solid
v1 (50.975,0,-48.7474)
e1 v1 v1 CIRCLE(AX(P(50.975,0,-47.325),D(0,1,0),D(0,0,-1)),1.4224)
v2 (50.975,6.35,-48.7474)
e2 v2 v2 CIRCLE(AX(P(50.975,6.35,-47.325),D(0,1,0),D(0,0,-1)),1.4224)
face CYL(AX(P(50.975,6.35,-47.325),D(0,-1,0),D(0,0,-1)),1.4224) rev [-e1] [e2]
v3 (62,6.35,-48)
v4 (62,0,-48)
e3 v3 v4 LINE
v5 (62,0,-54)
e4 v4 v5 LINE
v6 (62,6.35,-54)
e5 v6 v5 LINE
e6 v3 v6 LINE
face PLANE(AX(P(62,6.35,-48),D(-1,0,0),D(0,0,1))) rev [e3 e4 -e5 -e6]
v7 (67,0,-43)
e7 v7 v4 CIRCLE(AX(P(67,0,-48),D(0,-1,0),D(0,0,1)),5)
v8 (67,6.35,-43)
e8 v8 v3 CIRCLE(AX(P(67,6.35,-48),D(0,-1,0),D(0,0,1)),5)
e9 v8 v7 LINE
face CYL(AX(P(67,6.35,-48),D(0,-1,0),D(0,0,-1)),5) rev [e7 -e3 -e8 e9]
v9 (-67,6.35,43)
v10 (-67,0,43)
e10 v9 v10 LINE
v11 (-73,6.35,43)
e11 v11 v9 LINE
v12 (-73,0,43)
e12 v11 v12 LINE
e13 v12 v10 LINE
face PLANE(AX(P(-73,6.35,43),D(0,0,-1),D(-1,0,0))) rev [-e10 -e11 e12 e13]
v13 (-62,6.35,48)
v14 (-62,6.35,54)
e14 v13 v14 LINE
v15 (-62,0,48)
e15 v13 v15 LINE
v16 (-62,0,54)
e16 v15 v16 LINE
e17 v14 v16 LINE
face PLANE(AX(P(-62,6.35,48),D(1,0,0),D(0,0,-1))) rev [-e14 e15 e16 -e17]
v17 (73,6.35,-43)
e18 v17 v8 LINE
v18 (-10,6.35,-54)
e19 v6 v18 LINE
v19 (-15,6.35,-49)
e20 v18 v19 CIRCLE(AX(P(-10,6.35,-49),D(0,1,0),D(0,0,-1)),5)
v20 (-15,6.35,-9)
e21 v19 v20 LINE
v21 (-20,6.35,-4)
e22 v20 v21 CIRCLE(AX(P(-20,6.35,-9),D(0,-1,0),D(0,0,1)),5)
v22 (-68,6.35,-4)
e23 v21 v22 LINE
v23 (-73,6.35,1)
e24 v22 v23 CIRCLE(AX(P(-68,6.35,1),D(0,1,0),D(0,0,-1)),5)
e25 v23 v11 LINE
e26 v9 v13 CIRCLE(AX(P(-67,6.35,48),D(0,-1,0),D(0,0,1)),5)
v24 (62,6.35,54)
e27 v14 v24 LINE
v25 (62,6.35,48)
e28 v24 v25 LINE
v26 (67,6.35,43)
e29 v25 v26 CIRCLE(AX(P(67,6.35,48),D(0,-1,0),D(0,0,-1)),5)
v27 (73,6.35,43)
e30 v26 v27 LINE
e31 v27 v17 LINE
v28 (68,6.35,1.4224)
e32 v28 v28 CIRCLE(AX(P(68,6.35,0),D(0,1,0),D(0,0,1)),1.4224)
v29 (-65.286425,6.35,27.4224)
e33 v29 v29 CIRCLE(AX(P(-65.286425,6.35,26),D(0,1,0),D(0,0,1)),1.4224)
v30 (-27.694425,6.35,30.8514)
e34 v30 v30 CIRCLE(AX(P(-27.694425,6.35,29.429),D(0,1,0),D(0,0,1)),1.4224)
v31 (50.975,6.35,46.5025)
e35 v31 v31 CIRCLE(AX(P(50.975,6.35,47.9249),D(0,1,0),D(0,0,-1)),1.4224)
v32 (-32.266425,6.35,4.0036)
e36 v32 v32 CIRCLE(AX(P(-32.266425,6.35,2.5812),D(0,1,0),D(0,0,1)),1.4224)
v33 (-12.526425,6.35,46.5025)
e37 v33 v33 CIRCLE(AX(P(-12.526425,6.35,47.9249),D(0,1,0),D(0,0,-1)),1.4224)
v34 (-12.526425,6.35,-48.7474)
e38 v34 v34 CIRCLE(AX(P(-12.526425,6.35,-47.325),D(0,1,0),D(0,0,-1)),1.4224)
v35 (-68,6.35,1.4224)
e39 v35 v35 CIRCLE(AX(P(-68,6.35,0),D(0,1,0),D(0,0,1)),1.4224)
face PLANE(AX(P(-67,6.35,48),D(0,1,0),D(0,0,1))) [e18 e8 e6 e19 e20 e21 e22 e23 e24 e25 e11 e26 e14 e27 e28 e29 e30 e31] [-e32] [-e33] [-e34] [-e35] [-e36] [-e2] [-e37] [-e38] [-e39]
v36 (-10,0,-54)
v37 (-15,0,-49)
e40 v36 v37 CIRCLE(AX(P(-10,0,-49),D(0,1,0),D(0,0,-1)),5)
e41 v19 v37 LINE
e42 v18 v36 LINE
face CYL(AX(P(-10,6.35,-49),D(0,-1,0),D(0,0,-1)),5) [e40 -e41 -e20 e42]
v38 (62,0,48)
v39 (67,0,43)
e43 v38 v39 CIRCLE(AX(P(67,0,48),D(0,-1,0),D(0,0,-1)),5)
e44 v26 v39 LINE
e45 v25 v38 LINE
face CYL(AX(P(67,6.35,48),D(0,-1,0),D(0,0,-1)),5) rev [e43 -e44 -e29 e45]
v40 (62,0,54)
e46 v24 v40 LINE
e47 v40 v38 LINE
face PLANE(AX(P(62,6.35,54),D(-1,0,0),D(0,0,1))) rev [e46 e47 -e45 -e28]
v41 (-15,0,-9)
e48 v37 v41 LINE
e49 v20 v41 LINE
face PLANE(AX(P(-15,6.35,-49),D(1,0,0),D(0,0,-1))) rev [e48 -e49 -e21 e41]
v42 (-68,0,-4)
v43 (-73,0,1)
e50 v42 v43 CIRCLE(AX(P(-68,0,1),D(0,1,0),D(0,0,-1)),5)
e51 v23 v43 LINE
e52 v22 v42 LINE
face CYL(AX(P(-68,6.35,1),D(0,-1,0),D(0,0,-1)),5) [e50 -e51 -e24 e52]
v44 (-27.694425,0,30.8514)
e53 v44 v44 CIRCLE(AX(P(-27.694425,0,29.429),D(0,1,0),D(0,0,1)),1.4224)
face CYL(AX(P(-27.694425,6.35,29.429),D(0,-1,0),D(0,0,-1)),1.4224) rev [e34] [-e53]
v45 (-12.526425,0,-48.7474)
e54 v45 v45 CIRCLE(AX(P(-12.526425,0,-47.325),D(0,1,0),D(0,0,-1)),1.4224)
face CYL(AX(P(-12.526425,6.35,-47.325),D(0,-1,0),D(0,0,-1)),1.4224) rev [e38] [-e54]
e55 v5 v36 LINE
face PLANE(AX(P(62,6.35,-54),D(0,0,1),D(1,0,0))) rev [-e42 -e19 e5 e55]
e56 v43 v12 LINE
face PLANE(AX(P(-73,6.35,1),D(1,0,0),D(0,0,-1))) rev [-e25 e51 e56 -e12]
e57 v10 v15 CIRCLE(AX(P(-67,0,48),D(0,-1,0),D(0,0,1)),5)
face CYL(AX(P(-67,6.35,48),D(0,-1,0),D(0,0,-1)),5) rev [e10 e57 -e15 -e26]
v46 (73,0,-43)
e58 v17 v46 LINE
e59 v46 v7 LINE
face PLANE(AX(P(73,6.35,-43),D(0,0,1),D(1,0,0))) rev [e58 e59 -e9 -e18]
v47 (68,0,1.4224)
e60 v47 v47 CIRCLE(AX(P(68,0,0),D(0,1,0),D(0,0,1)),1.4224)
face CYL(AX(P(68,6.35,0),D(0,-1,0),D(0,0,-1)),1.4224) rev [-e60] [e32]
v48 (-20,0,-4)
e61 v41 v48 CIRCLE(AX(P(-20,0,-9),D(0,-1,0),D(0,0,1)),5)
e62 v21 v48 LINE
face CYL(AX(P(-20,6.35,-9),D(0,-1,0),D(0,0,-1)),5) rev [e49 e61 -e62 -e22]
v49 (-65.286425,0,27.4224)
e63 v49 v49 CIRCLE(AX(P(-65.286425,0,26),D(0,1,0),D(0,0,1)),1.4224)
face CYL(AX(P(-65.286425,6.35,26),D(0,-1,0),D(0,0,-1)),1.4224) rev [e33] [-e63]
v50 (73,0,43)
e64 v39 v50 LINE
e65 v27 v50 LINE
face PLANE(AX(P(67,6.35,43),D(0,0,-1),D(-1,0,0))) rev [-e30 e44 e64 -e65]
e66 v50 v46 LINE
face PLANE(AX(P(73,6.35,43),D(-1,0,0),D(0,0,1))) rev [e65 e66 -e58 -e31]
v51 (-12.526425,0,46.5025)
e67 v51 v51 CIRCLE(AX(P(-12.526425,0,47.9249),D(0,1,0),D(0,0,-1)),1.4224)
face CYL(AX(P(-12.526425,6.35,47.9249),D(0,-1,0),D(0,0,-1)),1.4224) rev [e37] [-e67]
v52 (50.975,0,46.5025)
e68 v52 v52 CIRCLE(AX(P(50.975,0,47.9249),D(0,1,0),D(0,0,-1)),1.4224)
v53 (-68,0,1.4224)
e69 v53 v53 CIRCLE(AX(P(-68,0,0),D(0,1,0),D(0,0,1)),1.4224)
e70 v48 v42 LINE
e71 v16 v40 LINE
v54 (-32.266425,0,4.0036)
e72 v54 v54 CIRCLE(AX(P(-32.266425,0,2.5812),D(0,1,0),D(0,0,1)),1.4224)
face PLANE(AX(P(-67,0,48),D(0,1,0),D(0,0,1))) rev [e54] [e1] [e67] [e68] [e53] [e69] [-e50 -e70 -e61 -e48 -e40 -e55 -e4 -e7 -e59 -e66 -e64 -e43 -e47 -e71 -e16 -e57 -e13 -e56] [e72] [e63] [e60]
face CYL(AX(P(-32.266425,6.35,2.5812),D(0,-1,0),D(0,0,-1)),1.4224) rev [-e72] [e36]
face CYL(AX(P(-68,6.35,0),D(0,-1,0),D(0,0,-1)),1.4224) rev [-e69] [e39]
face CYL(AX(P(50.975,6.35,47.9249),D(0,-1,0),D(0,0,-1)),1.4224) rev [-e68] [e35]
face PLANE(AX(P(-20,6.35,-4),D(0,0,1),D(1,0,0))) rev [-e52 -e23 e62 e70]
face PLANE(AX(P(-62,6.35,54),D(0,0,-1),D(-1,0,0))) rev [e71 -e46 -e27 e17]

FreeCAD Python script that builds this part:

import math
import FreeCAD as App
import Part
import Sketcher

V = App.Vector
Q = App.Units.Quantity

doc = App.newDocument("Part")
params = doc.addObject("Spreadsheet::Sheet", "Params")
for row, (alias, value) in enumerate([
    ("sketch1_radius", "5 mm"),
    ("sketch1_width", "6 mm"),
    ("sketch1_width2", "124 mm"),
    ("sketch1_width3", "72 mm"),
    ("sketch1_height", "42 mm"),
    ("pad1_length", "6.35 mm"),
], start=1):
    params.set(f"A{row}", alias)
    params.set(f"B{row}", "=" + value)
    params.setAlias(f"B{row}", alias)

body = doc.addObject("PartDesign::Body", "Body")

# Sketch on XZ plane
sketch1 = body.newObject("Sketcher::SketchObject", "Sketch")
sketch1.AttachmentSupport = (doc.getObject("XZ_Plane"), [""])
sketch1.MapMode = "FlatFace"
sketch1.addGeometry([
    Part.LineSegment(V(-73, 1, 0), V(-73, 43, 0)),  # 0
    Part.LineSegment(V(-73, 43, 0), V(-67, 43, 0)),  # 1
    Part.ArcOfCircle(Part.Circle(V(-67, 48, 0), V(0, 0, 1), 5), math.radians(-90), math.radians(0)),  # 2
    Part.LineSegment(V(-62, 48, 0), V(-62, 54, 0)),  # 3
    Part.LineSegment(V(-62, 54, 0), V(62, 54, 0)),  # 4
    Part.LineSegment(V(62, 54, 0), V(62, 48, 0)),  # 5
    Part.ArcOfCircle(Part.Circle(V(67, 48, 0), V(0, 0, 1), 5), math.radians(180), math.radians(270)),  # 6
    Part.LineSegment(V(67, 43, 0), V(73, 43, 0)),  # 7
    Part.LineSegment(V(73, 43, 0), V(73, -43, 0)),  # 8
    Part.LineSegment(V(73, -43, 0), V(67, -43, 0)),  # 9
    Part.ArcOfCircle(Part.Circle(V(67, -48, 0), V(0, 0, 1), 5), math.radians(90), math.radians(180)),  # 10
    Part.LineSegment(V(62, -48, 0), V(62, -54, 0)),  # 11
    Part.LineSegment(V(62, -54, 0), V(-10, -54, 0)),  # 12
    Part.ArcOfCircle(Part.Circle(V(-10, -49, 0), V(0, 0, 1), 5), math.radians(180), math.radians(270)),  # 13
    Part.LineSegment(V(-15, -49, 0), V(-15, -9, 0)),  # 14
    Part.ArcOfCircle(Part.Circle(V(-20, -9, 0), V(0, 0, 1), 5), math.radians(0), math.radians(90)),  # 15
    Part.LineSegment(V(-20, -4, 0), V(-68, -4, 0)),  # 16
    Part.ArcOfCircle(Part.Circle(V(-68, 1, 0), V(0, 0, 1), 5), math.radians(180), math.radians(270)),  # 17
    Part.Circle(V(-65.286425, 26, 0), V(0, 0, 1), 1.4224),  # 18
    Part.Circle(V(-12.526425, 47.9249, 0), V(0, 0, 1), 1.4224),  # 19
    Part.Circle(V(-27.694425, 29.429, 0), V(0, 0, 1), 1.4224),  # 20
    Part.Circle(V(-32.266425, 2.5812, 0), V(0, 0, 1), 1.4224),  # 21
    Part.Circle(V(50.975, 47.9249, 0), V(0, 0, 1), 1.4224),  # 22
    Part.Circle(V(-68, 0, 0), V(0, 0, 1), 1.4224),  # 23
    Part.Circle(V(-12.526425, -47.325, 0), V(0, 0, 1), 1.4224),  # 24
    Part.Circle(V(68, 0, 0), V(0, 0, 1), 1.4224),  # 25
    Part.Circle(V(50.975, -47.325, 0), V(0, 0, 1), 1.4224),  # 26
], False)
sketch1.addConstraint([
    Sketcher.Constraint("Coincident", 0, 2, 1, 1),
    Sketcher.Constraint("Tangent", 1, 2, 2, 1),
    Sketcher.Constraint("Tangent", 2, 2, 3, 1),
    Sketcher.Constraint("Coincident", 3, 2, 4, 1),
    Sketcher.Constraint("Coincident", 4, 2, 5, 1),
    Sketcher.Constraint("Tangent", 5, 2, 6, 1),
    Sketcher.Constraint("Tangent", 6, 2, 7, 1),
    Sketcher.Constraint("Coincident", 7, 2, 8, 1),
    Sketcher.Constraint("Coincident", 8, 2, 9, 1),
    Sketcher.Constraint("Tangent", 9, 2, 10, 1),
    Sketcher.Constraint("Tangent", 10, 2, 11, 1),
    Sketcher.Constraint("Coincident", 11, 2, 12, 1),
    Sketcher.Constraint("Tangent", 12, 2, 13, 2),
    Sketcher.Constraint("Tangent", 13, 1, 14, 1),
    Sketcher.Constraint("Tangent", 14, 2, 15, 1),
    Sketcher.Constraint("Tangent", 15, 2, 16, 1),
    Sketcher.Constraint("Tangent", 16, 2, 17, 2),
    Sketcher.Constraint("Tangent", 17, 1, 0, 1),
    Sketcher.Constraint("Vertical", 0),
    Sketcher.Constraint("Horizontal", 1),
    Sketcher.Constraint("Vertical", 3),
    Sketcher.Constraint("Horizontal", 4),
    Sketcher.Constraint("Vertical", 5),
    Sketcher.Constraint("Horizontal", 7),
    Sketcher.Constraint("Vertical", 8),
    Sketcher.Constraint("Horizontal", 9),
    Sketcher.Constraint("Vertical", 11),
    Sketcher.Constraint("Horizontal", 12),
    Sketcher.Constraint("Vertical", 14),
    Sketcher.Constraint("Horizontal", 16),
    Sketcher.Constraint("Equal", 2, 6),
    Sketcher.Constraint("Equal", 6, 10),
    Sketcher.Constraint("Equal", 10, 13),
    Sketcher.Constraint("Equal", 13, 15),
    Sketcher.Constraint("Equal", 15, 17),
    Sketcher.Constraint("Equal", 18, 19),
    Sketcher.Constraint("Equal", 19, 20),
    Sketcher.Constraint("Equal", 20, 21),
    Sketcher.Constraint("Equal", 21, 22),
    Sketcher.Constraint("Equal", 22, 23),
    Sketcher.Constraint("Equal", 23, 24),
    Sketcher.Constraint("Equal", 24, 25),
    Sketcher.Constraint("Equal", 25, 26),
    Sketcher.Constraint("Symmetric", 2, 3, 10, 3, -1, 1),
    Sketcher.Constraint("Symmetric", 23, 3, 25, 3, -1, 1),
    Sketcher.Constraint("Symmetric", 2, 3, 6, 3, -2),
    Sketcher.Constraint("PointOnObject", 23, 3, -1),
    Sketcher.Constraint("Horizontal", 19, 3, 22, 3),
    Sketcher.Constraint("Horizontal", 24, 3, 26, 3),
    Sketcher.Constraint("Vertical", 17, 3, 23, 3),
    Sketcher.Constraint("Vertical", 19, 3, 24, 3),
    Sketcher.Constraint("Vertical", 22, 3, 26, 3),
    Sketcher.Constraint("Equal", 1, 7),
    Sketcher.Constraint("Equal", 9, 3),
    Sketcher.Constraint("Equal", 5, 11),
    Sketcher.Constraint("Radius", 2, Q("5 mm")),
    Sketcher.Constraint("DistanceX", 1, 1, 1, 2, Q("6 mm")),
    Sketcher.Constraint("DistanceX", 4, 1, 4, 2, Q("124 mm")),
    Sketcher.Constraint("DistanceX", 12, 2, 12, 1, Q("72 mm")),
    Sketcher.Constraint("DistanceY", 0, 1, 0, 2, Q("42 mm")),
    Sketcher.Constraint("DistanceY", 8, 2, 8, 1, Q("86 mm")),
    Sketcher.Constraint("DistanceY", -1, 1, 18, 3, Q("26 mm")),
    Sketcher.Constraint("Diameter", 18, Q("2.8448 mm")),
    Sketcher.Constraint("DistanceX", 18, 3, 19, 3, Q("52.76 mm")),
    Sketcher.Constraint("DistanceX", 18, 3, 21, 3, Q("33.02 mm")),
    Sketcher.Constraint("DistanceY", -1, 1, 20, 3, Q("29.429 mm")),
    Sketcher.Constraint("DistanceX", -1, 1, 22, 3, Q("50.975 mm")),
    Sketcher.Constraint("DistanceY", 24, 3, -1, 1, Q("47.325 mm")),
    Sketcher.Constraint("DistanceX", 20, 3, 19, 3, Q("15.168 mm")),
    Sketcher.Constraint("DistanceY", -1, 1, 19, 3, Q("47.9249 mm")),
    Sketcher.Constraint("DistanceY", -1, 1, 21, 3, Q("2.5812 mm")),
    Sketcher.Constraint("DistanceX", 18, 3, -1, 1, Q("65.286425 mm")),
])
sketch1.setExpression("Constraints[55]", "Params.sketch1_radius")
sketch1.setExpression("Constraints[56]", "Params.sketch1_width")
sketch1.setExpression("Constraints[57]", "Params.sketch1_width2")
sketch1.setExpression("Constraints[58]", "Params.sketch1_width3")
sketch1.setExpression("Constraints[59]", "Params.sketch1_height")
pad1 = body.newObject("PartDesign::Pad", "Pad")
pad1.Profile = sketch1
pad1.setExpression("Length", "Params.pad1_length")
pad1.Reversed = True

doc.recompute()
